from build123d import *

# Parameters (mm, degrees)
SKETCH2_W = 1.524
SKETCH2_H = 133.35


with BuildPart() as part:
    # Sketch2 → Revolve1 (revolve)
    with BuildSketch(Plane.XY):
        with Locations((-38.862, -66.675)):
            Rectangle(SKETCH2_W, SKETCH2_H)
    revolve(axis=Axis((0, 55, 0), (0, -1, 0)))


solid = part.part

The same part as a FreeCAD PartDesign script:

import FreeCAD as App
import Part
import Sketcher

V = App.Vector
Q = App.Units.Quantity

doc = App.newDocument("Part")
body = doc.addObject("PartDesign::Body", "Body")

# Sketch on XY plane
sketch1 = body.newObject("Sketcher::SketchObject", "Sketch")
sketch1.AttachmentSupport = (doc.getObject("XY_Plane"), [""])
sketch1.MapMode = "FlatFace"
sketch1.addGeometry([
    Part.LineSegment(V(-39.6, 0, 0), V(-39.6, -133.3, 0)),
    Part.LineSegment(V(-39.6, -133.3, 0), V(-38.1, -133.3, 0)),
    Part.LineSegment(V(-38.1, -133.3, 0), V(-38.1, 0, 0)),
    Part.LineSegment(V(-38.1, 0, 0), V(-39.6, 0, 0)),
], False)
sketch1.addConstraint([
    Sketcher.Constraint("Coincident", 0, 2, 1, 1),
    Sketcher.Constraint("Coincident", 1, 2, 2, 1),
    Sketcher.Constraint("Coincident", 2, 2, 3, 1),
    Sketcher.Constraint("Coincident", 3, 2, 0, 1),
    Sketcher.Constraint("Vertical", 0),
    Sketcher.Constraint("Horizontal", 1),
    Sketcher.Constraint("Vertical", 2),
    Sketcher.Constraint("Horizontal", 3),
    Sketcher.Constraint("PointOnObject", 2, 2, -1),
    Sketcher.Constraint("DistanceX", 1, 1, 1, 2, Q("0.06 in")),
    Sketcher.Constraint("DistanceY", 0, 2, 0, 1, Q("5.25 in")),
    Sketcher.Constraint("DistanceX", 1, 2, -1, 1, Q("1.5 in")),
])
revolution = body.newObject("PartDesign::Revolution", "Revolution")
revolution.Profile = sketch1
revolution.ReferenceAxis = (sketch1, ["V_Axis"])
revolution.Angle = 360

doc.recompute()
